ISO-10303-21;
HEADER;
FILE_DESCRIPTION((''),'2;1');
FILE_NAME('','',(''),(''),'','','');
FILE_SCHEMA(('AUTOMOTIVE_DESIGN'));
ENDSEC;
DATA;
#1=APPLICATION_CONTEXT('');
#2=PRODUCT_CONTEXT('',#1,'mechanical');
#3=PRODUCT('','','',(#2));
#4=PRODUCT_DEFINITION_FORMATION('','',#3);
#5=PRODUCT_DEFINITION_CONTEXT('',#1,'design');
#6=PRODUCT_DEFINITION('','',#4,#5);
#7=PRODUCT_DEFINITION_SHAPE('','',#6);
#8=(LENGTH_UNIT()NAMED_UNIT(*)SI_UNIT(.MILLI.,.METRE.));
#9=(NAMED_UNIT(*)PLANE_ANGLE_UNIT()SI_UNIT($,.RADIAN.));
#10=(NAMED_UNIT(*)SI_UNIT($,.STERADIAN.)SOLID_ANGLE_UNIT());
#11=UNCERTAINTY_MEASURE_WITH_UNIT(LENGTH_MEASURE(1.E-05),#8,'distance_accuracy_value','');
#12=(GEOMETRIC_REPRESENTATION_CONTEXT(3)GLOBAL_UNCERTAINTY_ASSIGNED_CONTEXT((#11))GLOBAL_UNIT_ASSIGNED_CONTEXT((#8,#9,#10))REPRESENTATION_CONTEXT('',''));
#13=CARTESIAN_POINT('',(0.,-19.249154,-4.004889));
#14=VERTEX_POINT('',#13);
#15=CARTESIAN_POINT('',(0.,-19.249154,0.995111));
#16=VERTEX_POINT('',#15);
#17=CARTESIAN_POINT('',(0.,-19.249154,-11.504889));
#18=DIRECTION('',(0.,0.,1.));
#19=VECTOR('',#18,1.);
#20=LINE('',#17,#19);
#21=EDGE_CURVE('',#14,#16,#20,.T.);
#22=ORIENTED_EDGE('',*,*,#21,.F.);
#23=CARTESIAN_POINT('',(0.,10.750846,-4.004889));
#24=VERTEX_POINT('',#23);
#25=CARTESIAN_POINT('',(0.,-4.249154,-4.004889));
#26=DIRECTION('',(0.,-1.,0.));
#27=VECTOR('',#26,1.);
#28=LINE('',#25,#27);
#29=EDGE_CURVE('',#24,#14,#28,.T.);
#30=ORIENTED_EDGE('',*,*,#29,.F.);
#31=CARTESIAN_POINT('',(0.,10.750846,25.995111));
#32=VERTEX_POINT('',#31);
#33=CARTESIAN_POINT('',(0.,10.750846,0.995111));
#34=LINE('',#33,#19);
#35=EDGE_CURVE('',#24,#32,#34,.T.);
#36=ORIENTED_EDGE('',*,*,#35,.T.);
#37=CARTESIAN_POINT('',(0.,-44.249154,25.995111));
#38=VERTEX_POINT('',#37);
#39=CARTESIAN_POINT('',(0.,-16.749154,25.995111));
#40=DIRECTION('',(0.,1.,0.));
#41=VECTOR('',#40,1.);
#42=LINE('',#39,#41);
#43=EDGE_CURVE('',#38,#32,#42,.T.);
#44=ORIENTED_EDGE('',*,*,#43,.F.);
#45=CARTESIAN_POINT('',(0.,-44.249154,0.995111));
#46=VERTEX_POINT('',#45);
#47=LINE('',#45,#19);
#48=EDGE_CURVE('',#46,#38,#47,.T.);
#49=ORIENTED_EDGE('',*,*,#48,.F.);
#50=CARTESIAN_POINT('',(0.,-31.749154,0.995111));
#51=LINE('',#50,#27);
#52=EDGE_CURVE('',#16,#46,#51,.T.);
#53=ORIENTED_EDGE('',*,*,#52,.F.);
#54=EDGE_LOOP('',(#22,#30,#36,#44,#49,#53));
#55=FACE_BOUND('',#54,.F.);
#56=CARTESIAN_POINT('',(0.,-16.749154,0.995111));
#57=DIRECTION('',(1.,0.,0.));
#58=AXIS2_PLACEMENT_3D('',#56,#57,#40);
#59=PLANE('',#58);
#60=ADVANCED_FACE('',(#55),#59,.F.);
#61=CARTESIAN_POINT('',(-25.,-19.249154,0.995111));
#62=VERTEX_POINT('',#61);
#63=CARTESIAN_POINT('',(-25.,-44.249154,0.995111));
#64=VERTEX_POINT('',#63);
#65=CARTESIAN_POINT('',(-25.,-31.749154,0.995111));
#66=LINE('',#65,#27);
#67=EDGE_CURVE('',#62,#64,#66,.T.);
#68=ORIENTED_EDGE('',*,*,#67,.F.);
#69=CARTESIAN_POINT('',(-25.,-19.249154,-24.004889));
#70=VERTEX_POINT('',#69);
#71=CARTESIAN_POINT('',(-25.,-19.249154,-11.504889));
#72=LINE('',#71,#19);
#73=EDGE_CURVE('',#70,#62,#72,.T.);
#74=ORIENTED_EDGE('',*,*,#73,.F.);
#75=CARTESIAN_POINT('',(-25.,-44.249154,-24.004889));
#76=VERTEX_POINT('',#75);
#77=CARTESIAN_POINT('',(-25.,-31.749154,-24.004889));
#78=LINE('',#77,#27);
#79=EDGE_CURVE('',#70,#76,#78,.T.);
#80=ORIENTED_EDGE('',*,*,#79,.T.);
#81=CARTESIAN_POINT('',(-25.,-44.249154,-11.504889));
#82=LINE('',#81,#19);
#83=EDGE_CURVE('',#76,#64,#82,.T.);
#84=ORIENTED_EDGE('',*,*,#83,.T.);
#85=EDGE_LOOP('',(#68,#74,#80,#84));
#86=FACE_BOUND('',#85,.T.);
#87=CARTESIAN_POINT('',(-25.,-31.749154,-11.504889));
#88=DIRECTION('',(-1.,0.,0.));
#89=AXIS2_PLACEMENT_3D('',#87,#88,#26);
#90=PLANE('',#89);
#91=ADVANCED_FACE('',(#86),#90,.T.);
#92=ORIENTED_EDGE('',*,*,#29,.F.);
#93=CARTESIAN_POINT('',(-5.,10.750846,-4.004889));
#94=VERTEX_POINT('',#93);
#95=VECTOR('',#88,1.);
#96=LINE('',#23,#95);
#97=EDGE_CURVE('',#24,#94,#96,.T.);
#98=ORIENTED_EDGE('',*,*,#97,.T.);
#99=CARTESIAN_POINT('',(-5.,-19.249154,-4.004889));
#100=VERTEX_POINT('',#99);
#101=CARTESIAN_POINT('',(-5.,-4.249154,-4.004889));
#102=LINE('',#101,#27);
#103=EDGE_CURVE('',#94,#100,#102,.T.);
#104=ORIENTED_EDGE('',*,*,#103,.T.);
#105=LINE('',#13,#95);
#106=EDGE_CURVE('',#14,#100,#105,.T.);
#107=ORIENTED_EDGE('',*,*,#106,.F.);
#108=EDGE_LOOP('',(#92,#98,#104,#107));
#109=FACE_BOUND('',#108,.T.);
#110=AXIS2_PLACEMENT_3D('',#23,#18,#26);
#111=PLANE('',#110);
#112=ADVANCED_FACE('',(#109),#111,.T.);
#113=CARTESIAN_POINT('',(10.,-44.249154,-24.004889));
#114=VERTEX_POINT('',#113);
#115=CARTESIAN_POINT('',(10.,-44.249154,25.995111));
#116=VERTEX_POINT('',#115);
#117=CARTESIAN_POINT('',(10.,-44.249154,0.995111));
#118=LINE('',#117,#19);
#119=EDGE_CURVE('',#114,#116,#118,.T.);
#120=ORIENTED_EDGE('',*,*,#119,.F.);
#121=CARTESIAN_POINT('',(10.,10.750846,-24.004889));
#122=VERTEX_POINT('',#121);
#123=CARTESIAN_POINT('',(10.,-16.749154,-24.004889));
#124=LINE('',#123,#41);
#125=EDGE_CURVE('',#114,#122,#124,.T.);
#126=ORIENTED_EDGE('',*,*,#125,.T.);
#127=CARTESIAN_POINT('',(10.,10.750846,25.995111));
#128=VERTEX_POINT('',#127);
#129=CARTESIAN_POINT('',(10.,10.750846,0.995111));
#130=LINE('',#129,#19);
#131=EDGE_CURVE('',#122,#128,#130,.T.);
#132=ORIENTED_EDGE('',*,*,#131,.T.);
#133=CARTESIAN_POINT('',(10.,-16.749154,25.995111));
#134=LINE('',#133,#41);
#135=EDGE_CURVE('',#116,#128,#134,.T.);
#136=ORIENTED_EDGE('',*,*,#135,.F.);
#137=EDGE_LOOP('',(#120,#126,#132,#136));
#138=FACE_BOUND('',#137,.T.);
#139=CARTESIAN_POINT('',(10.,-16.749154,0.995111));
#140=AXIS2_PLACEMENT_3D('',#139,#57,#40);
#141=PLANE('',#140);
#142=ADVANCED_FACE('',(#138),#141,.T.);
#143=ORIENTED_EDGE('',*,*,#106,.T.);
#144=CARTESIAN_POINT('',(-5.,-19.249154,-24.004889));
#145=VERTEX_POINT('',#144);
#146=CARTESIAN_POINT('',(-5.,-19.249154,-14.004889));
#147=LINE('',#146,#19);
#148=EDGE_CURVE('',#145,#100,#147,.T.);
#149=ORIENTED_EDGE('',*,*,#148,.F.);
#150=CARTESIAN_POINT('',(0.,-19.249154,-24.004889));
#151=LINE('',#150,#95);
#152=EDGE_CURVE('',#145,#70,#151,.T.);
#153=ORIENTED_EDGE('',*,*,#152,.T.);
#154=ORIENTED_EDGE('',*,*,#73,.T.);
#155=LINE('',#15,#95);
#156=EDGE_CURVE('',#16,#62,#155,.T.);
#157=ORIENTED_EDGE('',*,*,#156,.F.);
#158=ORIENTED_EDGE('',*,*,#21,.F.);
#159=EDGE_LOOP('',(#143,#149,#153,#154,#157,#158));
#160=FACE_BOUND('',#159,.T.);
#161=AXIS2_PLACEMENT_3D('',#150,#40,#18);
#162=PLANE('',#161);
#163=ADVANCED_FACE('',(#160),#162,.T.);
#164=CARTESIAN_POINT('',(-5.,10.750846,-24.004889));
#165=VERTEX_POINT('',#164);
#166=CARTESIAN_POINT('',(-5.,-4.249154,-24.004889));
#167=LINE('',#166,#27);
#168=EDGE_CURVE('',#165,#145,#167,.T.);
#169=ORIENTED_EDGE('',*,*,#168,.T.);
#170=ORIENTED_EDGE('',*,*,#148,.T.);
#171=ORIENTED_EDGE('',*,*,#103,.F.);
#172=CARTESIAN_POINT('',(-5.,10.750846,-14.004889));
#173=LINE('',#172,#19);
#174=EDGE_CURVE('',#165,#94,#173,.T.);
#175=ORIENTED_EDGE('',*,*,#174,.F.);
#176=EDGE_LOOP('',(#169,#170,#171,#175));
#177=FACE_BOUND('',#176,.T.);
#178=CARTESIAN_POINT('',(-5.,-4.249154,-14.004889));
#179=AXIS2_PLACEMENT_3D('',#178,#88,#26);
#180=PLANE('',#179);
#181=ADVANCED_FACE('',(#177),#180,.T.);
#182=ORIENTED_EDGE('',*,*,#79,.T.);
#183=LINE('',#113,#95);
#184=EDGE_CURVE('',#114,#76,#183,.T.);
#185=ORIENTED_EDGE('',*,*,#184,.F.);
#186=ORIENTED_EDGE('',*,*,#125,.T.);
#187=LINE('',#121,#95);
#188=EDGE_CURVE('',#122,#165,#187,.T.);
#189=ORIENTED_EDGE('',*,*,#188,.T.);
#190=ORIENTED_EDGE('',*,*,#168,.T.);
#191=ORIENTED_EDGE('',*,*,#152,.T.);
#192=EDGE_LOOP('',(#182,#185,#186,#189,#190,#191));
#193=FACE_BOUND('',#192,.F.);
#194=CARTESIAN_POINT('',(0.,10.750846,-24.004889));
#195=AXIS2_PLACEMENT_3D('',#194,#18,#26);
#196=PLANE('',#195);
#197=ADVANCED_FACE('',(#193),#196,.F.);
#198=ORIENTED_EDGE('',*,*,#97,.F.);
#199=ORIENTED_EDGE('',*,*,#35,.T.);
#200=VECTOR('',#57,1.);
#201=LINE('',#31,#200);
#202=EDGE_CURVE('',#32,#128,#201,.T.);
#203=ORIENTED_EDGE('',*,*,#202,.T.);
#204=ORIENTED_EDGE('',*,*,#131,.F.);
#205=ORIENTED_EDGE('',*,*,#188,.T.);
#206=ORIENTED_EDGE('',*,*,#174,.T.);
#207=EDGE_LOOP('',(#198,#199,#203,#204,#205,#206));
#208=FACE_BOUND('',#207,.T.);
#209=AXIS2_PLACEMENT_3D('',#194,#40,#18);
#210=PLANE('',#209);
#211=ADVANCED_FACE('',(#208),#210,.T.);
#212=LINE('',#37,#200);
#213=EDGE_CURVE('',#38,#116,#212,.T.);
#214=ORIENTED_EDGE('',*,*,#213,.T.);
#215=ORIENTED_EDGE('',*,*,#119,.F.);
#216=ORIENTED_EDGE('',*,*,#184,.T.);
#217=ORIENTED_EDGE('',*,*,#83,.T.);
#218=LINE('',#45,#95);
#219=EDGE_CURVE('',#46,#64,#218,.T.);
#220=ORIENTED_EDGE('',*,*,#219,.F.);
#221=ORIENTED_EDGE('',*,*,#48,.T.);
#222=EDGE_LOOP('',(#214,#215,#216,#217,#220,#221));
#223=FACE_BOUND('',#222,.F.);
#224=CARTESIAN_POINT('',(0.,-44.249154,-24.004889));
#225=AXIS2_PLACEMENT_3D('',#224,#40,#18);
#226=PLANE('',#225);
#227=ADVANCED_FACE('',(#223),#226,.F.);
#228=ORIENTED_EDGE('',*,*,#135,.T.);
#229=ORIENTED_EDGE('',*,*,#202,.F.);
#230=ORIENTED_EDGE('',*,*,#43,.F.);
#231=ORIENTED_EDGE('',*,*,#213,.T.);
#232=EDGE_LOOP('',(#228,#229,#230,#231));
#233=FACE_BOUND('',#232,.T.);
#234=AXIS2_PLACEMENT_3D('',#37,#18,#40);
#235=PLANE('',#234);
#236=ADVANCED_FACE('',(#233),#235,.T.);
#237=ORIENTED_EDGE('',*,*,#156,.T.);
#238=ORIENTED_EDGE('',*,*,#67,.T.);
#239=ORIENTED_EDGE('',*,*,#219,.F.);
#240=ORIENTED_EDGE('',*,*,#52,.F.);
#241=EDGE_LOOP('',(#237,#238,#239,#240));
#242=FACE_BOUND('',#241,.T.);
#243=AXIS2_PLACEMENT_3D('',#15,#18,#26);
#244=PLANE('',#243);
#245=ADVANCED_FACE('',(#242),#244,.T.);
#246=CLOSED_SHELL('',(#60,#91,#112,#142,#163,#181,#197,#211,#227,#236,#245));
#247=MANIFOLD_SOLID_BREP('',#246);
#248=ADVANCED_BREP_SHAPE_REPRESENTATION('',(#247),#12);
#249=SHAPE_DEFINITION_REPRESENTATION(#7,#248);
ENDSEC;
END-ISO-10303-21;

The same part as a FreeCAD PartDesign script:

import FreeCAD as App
import Part
import Sketcher
Q = App.Units.Quantity

doc = App.newDocument("Part")
params = doc.addObject("Spreadsheet::Sheet", "Params")
for row, (alias, value) in enumerate([
    ("sketch1_width", "55 mm"),
    ("sketch1_height", "50 mm"),
    ("pad1_length", "10 mm"),
    ("sketch2_width", "25 mm"),
    ("pad2_length", "25 mm"),
    ("sketch3_width", "30 mm"),
    ("sketch3_height", "20 mm"),
    ("pad3_length", "5 mm"),
], start=1):
    params.set(f"A{row}", alias)
    params.set(f"B{row}", "=" + value)
    params.setAlias(f"B{row}", alias)

body = doc.addObject("PartDesign::Body", "Body")

# Sketch on YZ plane
sketch1 = body.newObject("Sketcher::SketchObject", "Sketch")
sketch1.AttachmentSupport = (doc.getObject("YZ_Plane"), [""])
sketch1.MapMode = "FlatFace"
sketch1.addGeometry([
    Part.LineSegment(App.Vector(-44, 26, 0), App.Vector(-44, -24, 0)),
    Part.LineSegment(App.Vector(-44, -24, 0), App.Vector(11, -24, 0)),
    Part.LineSegment(App.Vector(11, -24, 0), App.Vector(11, 26, 0)),
    Part.LineSegment(App.Vector(11, 26, 0), App.Vector(-44, 26, 0)),
], False)
sketch1.addConstraint([
    Sketcher.Constraint("Coincident", 0, 2, 1, 1),
    Sketcher.Constraint("Coincident", 1, 2, 2, 1),
    Sketcher.Constraint("Coincident", 2, 2, 3, 1),
    Sketcher.Constraint("Coincident", 3, 2, 0, 1),
    Sketcher.Constraint("Vertical", 0),
    Sketcher.Constraint("Horizontal", 1),
    Sketcher.Constraint("Vertical", 2),
    Sketcher.Constraint("Horizontal", 3),
    Sketcher.Constraint("DistanceX", 1, 1, 1, 2, Q("55 mm")),
    Sketcher.Constraint("DistanceY", 0, 2, 0, 1, Q("50 mm")),
    Sketcher.Constraint("DistanceY", 0, 2, -1, 1, Q("24.004889 mm")),
    Sketcher.Constraint("DistanceX", 0, 2, -1, 1, Q("44.249154 mm")),
])
sketch1.setExpression("Constraints[8]", "Params.sketch1_width")
sketch1.setExpression("Constraints[9]", "Params.sketch1_height")
pad1 = body.newObject("PartDesign::Pad", "Pad")
pad1.Profile = sketch1
pad1.setExpression("Length", "Params.pad1_length")

# Sketch on YZ plane
sketch2 = body.newObject("Sketcher::SketchObject", "Sketch001")
sketch2.AttachmentSupport = (doc.getObject("YZ_Plane"), [""])
sketch2.MapMode = "FlatFace"
sketch2.addGeometry([
    Part.LineSegment(App.Vector(-19, 1, 0), App.Vector(-19, -24, 0)),
    Part.LineSegment(App.Vector(-19, -24, 0), App.Vector(-44, -24, 0)),
    Part.LineSegment(App.Vector(-44, -24, 0), App.Vector(-44, 1, 0)),
    Part.LineSegment(App.Vector(-44, 1, 0), App.Vector(-19, 1, 0)),
], False)
sketch2.addConstraint([
    Sketcher.Constraint("Coincident", 0, 2, 1, 1),
    Sketcher.Constraint("Coincident", 1, 2, 2, 1),
    Sketcher.Constraint("Coincident", 2, 2, 3, 1),
    Sketcher.Constraint("Coincident", 3, 2, 0, 1),
    Sketcher.Constraint("Vertical", 0),
    Sketcher.Constraint("Horizontal", 1),
    Sketcher.Constraint("Vertical", 2),
    Sketcher.Constraint("Horizontal", 3),
    Sketcher.Constraint("Equal", 3, 0),
    Sketcher.Constraint("DistanceX", 1, 2, 1, 1, Q("25 mm")),
    Sketcher.Constraint("DistanceY", 0, 2, -1, 1, Q("24.004889 mm")),
    Sketcher.Constraint("DistanceX", 0, 2, -1, 1, Q("19.249154 mm")),
])
sketch2.setExpression("Constraints[9]", "Params.sketch2_width")
pad2 = body.newObject("PartDesign::Pad", "Pad001")
pad2.Profile = sketch2
pad2.setExpression("Length", "Params.pad2_length")
pad2.Reversed = True

# Sketch on YZ plane
sketch3 = body.newObject("Sketcher::SketchObject", "Sketch002")
sketch3.AttachmentSupport = (doc.getObject("YZ_Plane"), [""])
sketch3.MapMode = "FlatFace"
sketch3.addGeometry([
    Part.LineSegment(App.Vector(11, -4, 0), App.Vector(11, -24, 0)),
    Part.LineSegment(App.Vector(11, -24, 0), App.Vector(-19, -24, 0)),
    Part.LineSegment(App.Vector(-19, -24, 0), App.Vector(-19, -4, 0)),
    Part.LineSegment(App.Vector(-19, -4, 0), App.Vector(11, -4, 0)),
], False)
sketch3.addConstraint([
    Sketcher.Constraint("Coincident", 0, 2, 1, 1),
    Sketcher.Constraint("Coincident", 1, 2, 2, 1),
    Sketcher.Constraint("Coincident", 2, 2, 3, 1),
    Sketcher.Constraint("Coincident", 3, 2, 0, 1),
    Sketcher.Constraint("Vertical", 0),
    Sketcher.Constraint("Horizontal", 1),
    Sketcher.Constraint("Vertical", 2),
    Sketcher.Constraint("Horizontal", 3),
    Sketcher.Constraint("DistanceX", 1, 2, 1, 1, Q("30 mm")),
    Sketcher.Constraint("DistanceY", 0, 2, 0, 1, Q("20 mm")),
    Sketcher.Constraint("DistanceY", 0, 2, -1, 1, Q("24.004889 mm")),
    Sketcher.Constraint("DistanceX", -1, 1, 0, 2, Q("10.750846 mm")),
])
sketch3.setExpression("Constraints[8]", "Params.sketch3_width")
sketch3.setExpression("Constraints[9]", "Params.sketch3_height")
pad3 = body.newObject("PartDesign::Pad", "Pad002")
pad3.Profile = sketch3
pad3.setExpression("Length", "Params.pad3_length")
pad3.Reversed = True

doc.recompute()
